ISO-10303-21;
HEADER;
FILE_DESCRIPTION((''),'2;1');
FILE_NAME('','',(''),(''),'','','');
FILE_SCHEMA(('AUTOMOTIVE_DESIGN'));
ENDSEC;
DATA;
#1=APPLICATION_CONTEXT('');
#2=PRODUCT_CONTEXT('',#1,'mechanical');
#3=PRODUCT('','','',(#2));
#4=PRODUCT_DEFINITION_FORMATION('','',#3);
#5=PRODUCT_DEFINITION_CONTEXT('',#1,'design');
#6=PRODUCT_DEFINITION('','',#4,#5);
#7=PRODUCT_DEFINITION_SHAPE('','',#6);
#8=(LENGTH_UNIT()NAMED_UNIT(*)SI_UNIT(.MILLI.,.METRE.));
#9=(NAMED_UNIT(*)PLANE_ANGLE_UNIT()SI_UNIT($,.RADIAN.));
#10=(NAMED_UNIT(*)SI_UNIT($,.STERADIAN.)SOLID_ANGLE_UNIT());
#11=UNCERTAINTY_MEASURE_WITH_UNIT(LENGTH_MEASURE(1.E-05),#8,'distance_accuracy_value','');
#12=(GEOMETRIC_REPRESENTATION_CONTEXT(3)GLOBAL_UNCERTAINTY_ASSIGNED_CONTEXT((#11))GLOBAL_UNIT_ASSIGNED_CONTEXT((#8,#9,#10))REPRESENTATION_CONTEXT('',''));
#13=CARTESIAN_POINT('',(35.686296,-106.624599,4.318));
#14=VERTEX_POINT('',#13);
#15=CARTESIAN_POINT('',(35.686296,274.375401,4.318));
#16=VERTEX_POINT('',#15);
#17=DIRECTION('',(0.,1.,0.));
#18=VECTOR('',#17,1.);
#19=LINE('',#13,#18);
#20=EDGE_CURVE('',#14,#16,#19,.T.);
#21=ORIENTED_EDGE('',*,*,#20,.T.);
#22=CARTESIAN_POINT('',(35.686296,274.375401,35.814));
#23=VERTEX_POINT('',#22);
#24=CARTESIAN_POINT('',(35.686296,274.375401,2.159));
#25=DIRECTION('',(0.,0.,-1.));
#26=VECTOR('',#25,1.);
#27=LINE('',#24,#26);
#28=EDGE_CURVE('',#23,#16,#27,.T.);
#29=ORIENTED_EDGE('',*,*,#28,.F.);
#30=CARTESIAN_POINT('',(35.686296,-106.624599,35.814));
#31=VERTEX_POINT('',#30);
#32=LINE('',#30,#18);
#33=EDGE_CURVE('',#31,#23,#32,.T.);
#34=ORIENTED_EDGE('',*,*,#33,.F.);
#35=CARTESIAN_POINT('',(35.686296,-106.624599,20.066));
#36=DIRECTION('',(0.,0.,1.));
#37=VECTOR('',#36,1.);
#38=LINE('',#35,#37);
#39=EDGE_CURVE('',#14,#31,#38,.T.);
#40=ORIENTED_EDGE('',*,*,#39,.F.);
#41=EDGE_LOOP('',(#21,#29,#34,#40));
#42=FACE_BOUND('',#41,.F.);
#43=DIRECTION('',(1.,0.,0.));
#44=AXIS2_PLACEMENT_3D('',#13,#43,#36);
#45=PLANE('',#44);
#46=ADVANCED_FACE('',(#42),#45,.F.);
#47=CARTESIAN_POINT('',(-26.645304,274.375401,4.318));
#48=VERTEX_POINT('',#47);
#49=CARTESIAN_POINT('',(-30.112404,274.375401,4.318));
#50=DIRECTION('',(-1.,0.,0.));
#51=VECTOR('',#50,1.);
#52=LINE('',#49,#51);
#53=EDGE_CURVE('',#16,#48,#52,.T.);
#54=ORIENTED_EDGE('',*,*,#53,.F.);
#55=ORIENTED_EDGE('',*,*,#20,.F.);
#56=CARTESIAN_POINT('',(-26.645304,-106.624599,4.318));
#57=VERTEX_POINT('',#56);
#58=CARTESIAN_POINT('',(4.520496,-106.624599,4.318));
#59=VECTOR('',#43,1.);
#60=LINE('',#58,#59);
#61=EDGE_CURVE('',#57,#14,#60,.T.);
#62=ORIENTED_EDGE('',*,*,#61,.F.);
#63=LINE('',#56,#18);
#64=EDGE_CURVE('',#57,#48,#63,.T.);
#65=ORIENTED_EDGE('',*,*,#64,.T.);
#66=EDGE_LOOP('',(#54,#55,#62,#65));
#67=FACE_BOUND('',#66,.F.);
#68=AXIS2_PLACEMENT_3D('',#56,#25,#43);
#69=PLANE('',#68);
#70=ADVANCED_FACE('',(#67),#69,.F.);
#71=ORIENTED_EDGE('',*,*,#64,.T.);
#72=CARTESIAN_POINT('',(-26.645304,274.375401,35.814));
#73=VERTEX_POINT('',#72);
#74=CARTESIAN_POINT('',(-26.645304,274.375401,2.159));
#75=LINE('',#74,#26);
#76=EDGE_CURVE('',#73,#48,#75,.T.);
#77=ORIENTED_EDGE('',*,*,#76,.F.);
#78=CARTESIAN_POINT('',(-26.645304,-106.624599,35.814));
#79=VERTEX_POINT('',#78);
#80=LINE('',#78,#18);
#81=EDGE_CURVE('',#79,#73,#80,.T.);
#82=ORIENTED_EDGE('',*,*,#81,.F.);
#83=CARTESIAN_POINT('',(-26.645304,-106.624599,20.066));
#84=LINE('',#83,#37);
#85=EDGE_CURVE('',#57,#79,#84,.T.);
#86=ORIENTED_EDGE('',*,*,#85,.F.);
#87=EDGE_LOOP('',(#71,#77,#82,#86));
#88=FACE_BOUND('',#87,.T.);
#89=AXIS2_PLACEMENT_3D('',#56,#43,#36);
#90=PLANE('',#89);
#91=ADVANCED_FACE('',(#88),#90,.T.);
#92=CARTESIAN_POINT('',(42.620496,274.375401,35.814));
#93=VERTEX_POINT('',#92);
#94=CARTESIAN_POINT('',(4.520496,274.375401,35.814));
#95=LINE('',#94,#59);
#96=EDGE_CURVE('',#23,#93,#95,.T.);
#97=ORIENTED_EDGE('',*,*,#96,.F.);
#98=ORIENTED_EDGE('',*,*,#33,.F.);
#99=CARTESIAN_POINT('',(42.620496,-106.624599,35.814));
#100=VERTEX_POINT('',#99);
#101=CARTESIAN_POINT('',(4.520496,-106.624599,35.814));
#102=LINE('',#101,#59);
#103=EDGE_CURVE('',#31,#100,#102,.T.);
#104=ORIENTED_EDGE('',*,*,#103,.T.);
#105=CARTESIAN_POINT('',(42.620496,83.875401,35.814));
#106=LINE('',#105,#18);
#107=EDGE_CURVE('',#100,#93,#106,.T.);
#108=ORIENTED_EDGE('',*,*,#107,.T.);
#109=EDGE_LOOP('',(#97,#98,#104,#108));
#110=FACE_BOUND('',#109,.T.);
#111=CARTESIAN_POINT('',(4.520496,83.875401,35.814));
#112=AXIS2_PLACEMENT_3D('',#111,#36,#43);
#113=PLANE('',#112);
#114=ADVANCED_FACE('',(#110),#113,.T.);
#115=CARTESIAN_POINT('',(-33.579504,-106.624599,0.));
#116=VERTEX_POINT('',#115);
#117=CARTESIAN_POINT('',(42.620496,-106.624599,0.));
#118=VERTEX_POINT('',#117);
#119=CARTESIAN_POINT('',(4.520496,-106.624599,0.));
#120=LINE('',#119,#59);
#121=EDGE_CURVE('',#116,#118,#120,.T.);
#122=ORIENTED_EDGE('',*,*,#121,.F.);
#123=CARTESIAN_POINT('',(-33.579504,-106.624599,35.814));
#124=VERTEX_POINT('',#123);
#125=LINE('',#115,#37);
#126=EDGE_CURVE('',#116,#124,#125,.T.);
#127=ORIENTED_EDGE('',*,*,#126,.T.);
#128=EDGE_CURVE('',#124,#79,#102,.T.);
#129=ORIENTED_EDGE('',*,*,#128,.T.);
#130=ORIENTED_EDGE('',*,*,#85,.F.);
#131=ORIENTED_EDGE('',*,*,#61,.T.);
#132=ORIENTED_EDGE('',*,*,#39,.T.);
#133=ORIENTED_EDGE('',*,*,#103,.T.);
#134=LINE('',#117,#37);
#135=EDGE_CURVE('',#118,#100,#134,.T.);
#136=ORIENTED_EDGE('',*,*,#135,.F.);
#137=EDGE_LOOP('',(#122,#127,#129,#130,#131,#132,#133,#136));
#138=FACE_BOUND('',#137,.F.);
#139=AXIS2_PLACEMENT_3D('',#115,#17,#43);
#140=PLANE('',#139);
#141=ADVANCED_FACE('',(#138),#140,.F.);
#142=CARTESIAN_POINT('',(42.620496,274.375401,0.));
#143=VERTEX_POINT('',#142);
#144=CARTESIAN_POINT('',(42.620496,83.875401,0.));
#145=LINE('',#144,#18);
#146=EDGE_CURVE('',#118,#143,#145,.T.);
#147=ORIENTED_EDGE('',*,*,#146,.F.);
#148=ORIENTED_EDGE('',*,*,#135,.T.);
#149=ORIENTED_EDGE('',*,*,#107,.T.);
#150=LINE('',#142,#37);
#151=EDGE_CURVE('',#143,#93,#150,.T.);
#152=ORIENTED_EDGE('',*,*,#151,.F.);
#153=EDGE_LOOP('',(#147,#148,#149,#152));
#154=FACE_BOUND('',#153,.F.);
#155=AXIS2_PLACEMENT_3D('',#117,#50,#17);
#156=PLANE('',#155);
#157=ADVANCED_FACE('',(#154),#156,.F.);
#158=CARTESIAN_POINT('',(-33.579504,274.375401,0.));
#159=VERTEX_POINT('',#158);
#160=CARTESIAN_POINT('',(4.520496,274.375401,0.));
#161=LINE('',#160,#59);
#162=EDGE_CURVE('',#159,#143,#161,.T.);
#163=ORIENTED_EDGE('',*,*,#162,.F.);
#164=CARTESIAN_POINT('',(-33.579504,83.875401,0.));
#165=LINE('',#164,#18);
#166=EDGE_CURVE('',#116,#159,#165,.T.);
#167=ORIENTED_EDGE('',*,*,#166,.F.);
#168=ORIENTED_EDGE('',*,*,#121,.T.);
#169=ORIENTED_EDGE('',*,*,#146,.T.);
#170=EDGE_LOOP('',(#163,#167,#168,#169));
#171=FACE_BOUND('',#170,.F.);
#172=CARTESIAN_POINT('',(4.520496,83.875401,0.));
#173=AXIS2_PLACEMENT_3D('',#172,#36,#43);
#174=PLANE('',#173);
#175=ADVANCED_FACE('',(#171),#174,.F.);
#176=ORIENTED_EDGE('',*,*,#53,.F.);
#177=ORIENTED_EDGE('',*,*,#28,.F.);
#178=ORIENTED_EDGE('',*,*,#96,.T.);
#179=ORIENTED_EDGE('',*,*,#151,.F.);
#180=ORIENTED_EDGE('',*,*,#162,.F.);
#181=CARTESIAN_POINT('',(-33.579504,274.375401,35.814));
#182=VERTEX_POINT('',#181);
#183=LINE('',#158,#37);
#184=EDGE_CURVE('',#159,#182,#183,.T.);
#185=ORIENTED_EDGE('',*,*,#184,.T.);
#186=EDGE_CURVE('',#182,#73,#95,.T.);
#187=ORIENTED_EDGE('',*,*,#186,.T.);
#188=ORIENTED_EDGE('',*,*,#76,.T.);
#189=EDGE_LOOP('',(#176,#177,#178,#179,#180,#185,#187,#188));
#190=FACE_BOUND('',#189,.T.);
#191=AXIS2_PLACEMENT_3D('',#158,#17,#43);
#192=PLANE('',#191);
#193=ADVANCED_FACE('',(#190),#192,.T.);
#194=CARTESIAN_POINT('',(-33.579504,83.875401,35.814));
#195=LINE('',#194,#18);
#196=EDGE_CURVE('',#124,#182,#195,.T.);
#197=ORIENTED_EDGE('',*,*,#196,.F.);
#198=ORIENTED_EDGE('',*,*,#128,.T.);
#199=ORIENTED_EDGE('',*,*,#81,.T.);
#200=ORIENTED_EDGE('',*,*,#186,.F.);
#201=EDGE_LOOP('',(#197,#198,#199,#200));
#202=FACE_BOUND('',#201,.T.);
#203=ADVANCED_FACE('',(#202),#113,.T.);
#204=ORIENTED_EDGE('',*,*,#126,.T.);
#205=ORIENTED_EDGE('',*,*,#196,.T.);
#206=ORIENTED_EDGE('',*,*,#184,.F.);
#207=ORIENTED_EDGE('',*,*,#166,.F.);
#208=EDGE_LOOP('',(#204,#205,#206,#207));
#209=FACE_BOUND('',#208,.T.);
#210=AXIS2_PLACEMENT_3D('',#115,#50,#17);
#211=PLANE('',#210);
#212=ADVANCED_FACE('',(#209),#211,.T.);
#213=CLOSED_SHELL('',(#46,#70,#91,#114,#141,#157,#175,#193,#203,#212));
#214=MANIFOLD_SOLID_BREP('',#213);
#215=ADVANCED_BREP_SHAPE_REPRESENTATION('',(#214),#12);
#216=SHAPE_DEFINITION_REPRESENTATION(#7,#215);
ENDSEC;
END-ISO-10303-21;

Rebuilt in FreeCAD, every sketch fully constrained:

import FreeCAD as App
import Part
import Sketcher

V = App.Vector
Q = App.Units.Quantity


def add_polygon(sketch, points):
    """Adds a closed chain of lines whose ends are joined by coincident constraints."""
    first, n = sketch.GeometryCount, len(points)
    for a, b in zip(points, points[1:] + points[:1]):
        sketch.addGeometry(Part.LineSegment(App.Vector(*a, 0), App.Vector(*b, 0)), False)
    for i in range(n):
        sketch.addConstraint(Sketcher.Constraint("Coincident", first + i, 2, first + (i + 1) % n, 1))

doc = App.newDocument("Part")
params = doc.addObject("Spreadsheet::Sheet", "Params")
for row, (alias, value) in enumerate([
    ("sketch1_width", "3 in"),
    ("sketch1_height", "15 in"),
    ("pad1_length", "1.41 in"),
    ("sketch2_height", "1.24 in"),
    ("sketch2_width", "2.454 in"),
], start=1):
    params.set(f"A{row}", alias)
    params.set(f"B{row}", "=" + value)
    params.setAlias(f"B{row}", alias)

body = doc.addObject("PartDesign::Body", "Body")

sketch1 = body.newObject("Sketcher::SketchObject", "Sketch")
sketch1.AttachmentSupport = (doc.getObject("XY_Plane"), [""])
sketch1.MapMode = "FlatFace"
add_polygon(sketch1, [(-33.579504, 274.375401), (-33.579504, -106.624599), (42.620496, -106.624599), (42.620496, 274.375401)])
sketch1.addConstraint([
    Sketcher.Constraint("Vertical", 0),
    Sketcher.Constraint("Horizontal", 1),
    Sketcher.Constraint("Vertical", 2),
    Sketcher.Constraint("Horizontal", 3),
    Sketcher.Constraint("DistanceX", 1, 1, 1, 2, Q("3 in")),
    Sketcher.Constraint("DistanceY", 0, 2, 0, 1, Q("15 in")),
    Sketcher.Constraint("DistanceY", 0, 2, -1, 1, Q("106.624599 mm")),
    Sketcher.Constraint("DistanceX", 0, 2, -1, 1, Q("33.579504 mm")),
])
sketch1.setExpression("Constraints[8]", "Params.sketch1_width")
sketch1.setExpression("Constraints[9]", "Params.sketch1_height")
pad1 = body.newObject("PartDesign::Pad", "Pad")
pad1.Profile = sketch1
pad1.setExpression("Length", "Params.pad1_length")

sketch2 = body.newObject("Sketcher::SketchObject", "Sketch001")
sketch2.AttachmentSupport = (doc.getObject("XZ_Plane"), [""])
sketch2.MapMode = "FlatFace"
sketch2.AttachmentOffset = App.Placement(V(0, 0, 106.624599), App.Rotation())
add_polygon(sketch2, [(-26.645304, 35.814), (-26.645304, 4.318), (35.686296, 4.318), (35.686296, 35.814)])
sketch2.addConstraint([
    Sketcher.Constraint("Vertical", 0),
    Sketcher.Constraint("Horizontal", 1),
    Sketcher.Constraint("Vertical", 2),
    Sketcher.Constraint("Horizontal", 3),
    Sketcher.Constraint("DistanceY", 0, 2, 0, 1, Q("1.24 in")),
    Sketcher.Constraint("DistanceX", 1, 1, 1, 2, Q("2.454 in")),
    Sketcher.Constraint("DistanceY", -1, 1, 0, 2, Q("0.17 in")),
    Sketcher.Constraint("DistanceX", 0, 2, -1, 1, Q("26.645304 mm")),
])
sketch2.setExpression("Constraints[8]", "Params.sketch2_height")
sketch2.setExpression("Constraints[9]", "Params.sketch2_width")
pocket1 = body.newObject("PartDesign::Pocket", "Pocket")
pocket1.Profile = sketch2
pocket1.Type = "ThroughAll"

doc.recompute()
